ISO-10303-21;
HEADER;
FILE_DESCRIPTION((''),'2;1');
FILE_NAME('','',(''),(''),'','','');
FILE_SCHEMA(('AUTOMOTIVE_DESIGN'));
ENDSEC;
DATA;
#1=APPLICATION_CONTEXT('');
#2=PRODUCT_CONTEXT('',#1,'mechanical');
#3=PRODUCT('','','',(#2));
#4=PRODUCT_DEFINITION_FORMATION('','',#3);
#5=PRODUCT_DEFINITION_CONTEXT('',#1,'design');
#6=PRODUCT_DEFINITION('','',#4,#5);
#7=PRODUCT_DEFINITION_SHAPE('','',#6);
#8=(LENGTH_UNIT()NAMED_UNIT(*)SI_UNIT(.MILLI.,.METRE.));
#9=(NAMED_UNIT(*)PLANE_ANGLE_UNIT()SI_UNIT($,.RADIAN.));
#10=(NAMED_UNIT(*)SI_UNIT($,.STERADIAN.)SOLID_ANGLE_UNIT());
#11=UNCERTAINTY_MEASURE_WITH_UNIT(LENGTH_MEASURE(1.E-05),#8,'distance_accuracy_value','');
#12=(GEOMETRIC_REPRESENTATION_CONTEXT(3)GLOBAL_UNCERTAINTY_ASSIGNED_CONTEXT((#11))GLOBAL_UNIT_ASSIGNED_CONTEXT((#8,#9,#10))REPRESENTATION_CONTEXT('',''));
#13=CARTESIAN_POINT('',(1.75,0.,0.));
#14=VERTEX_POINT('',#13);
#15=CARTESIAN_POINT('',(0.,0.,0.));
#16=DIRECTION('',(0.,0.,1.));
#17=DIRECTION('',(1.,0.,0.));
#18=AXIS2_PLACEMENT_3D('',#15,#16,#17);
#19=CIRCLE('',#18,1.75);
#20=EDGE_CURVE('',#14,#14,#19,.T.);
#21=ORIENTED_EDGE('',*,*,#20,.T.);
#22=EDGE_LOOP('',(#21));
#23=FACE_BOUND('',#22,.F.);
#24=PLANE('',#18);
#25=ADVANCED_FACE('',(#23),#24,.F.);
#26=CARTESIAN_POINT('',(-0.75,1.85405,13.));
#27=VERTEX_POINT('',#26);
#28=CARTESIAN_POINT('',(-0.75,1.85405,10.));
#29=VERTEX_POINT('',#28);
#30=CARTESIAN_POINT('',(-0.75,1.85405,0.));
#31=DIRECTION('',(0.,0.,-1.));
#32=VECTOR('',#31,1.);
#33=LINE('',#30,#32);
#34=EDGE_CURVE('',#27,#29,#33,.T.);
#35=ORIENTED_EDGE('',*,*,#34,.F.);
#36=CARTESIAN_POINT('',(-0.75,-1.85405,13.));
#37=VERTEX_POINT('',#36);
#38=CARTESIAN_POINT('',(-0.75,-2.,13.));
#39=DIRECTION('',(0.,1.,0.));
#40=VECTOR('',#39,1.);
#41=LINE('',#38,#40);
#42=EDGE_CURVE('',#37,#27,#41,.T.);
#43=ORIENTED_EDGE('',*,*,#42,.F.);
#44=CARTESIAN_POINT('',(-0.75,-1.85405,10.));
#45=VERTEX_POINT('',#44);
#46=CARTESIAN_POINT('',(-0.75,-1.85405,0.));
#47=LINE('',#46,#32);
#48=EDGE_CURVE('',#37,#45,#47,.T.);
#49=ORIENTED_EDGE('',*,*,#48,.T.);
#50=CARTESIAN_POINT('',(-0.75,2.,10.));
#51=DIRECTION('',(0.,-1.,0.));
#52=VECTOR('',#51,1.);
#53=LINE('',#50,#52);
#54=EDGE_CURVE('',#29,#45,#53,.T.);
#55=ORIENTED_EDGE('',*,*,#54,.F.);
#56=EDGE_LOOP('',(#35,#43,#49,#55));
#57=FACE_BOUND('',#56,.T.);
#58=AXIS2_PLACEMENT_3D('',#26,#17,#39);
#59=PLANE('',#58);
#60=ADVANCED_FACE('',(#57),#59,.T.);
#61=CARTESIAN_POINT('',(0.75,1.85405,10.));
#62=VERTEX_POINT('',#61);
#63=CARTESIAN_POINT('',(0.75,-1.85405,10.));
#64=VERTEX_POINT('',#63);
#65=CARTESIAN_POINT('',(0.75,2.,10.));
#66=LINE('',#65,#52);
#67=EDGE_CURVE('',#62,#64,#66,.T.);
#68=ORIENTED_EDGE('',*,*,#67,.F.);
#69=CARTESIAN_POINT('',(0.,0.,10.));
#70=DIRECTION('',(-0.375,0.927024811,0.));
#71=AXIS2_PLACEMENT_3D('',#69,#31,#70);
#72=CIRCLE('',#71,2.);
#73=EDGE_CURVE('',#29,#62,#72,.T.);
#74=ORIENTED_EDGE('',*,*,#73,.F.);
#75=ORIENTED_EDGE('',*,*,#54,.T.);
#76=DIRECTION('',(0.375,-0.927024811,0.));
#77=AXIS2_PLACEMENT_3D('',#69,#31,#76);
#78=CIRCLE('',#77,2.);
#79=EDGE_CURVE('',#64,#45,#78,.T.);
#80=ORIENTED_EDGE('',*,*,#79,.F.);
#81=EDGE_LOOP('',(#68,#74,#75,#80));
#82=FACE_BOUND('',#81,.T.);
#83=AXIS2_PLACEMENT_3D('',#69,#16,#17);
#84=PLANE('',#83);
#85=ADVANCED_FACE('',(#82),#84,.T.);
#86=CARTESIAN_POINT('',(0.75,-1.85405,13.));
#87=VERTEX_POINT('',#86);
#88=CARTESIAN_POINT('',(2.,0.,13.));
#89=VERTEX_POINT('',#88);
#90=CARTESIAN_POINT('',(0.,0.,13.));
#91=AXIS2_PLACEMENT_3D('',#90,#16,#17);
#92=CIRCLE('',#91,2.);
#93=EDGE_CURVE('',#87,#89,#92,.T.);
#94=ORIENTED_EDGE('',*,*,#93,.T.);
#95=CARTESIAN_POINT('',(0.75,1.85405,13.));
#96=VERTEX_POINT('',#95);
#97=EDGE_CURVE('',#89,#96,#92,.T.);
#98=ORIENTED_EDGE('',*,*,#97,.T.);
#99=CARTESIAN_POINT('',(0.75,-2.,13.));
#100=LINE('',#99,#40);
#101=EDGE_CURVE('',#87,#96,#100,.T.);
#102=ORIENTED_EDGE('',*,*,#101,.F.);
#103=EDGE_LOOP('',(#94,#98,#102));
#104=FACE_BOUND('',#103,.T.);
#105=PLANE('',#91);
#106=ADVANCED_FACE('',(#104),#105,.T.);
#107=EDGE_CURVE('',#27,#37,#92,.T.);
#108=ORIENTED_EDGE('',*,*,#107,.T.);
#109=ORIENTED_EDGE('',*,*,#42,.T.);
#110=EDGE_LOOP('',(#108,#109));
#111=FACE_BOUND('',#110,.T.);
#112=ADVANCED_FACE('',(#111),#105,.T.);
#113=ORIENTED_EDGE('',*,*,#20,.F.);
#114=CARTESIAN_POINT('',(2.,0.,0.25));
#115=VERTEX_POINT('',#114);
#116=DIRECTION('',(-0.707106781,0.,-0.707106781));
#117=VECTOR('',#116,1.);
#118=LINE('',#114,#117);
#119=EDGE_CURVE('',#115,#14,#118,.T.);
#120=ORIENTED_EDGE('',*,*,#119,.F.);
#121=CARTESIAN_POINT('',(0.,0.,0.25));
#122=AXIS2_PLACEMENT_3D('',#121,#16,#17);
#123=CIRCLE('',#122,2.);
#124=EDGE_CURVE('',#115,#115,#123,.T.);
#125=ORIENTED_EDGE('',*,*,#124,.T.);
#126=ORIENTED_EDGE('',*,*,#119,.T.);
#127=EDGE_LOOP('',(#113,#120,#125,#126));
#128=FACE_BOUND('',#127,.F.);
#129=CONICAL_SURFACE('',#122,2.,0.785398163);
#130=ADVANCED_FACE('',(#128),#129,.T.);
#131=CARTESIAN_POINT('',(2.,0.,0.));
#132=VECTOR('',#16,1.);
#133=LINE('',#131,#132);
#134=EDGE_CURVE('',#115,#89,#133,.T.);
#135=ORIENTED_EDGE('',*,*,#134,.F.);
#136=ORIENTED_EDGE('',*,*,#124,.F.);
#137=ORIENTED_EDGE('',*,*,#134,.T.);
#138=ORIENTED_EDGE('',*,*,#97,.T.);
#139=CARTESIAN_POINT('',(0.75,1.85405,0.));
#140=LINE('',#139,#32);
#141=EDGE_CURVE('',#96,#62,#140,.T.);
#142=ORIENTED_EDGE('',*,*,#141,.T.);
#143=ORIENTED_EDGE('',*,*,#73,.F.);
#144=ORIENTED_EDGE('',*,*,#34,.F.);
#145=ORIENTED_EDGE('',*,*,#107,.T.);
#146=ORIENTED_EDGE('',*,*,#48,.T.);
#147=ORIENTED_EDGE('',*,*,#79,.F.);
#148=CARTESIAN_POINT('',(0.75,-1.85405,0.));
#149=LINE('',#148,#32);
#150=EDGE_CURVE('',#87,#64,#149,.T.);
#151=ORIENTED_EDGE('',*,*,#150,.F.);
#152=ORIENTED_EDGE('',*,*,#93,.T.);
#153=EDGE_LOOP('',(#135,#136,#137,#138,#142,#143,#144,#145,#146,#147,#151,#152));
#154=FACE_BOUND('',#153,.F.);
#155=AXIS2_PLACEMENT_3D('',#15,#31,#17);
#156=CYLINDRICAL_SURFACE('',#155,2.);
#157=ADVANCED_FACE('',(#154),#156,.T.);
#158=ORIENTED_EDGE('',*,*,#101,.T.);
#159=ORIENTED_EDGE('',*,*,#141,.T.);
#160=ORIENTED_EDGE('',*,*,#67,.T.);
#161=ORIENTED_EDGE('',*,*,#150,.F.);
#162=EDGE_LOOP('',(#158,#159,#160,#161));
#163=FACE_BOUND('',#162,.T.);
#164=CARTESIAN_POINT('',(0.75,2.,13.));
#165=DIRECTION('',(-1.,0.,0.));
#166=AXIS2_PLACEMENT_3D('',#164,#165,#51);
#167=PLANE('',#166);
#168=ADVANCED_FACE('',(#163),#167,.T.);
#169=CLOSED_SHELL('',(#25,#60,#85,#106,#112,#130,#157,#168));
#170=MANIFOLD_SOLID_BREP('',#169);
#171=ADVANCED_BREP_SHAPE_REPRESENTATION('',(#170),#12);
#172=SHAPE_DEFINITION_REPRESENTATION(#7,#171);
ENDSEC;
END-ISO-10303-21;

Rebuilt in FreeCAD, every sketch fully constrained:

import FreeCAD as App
import Part
import Sketcher
Q = App.Units.Quantity


def edges_at(feature, points):
    """Names of the edges that pass closest to the given points."""
    edges = feature.Shape.Edges
    near = lambda p: min(range(len(edges)), key=lambda i: edges[i].distToShape(Part.Vertex(*p))[0])
    return sorted({f"Edge{near(p) + 1}" for p in points})

doc = App.newDocument("Part")
body = doc.addObject("PartDesign::Body", "Body")

# Sketch on XY plane
sketch1 = doc.addObject("Sketcher::SketchObject", "Sketch")
body.addObject(sketch1)
sketch1.AttachmentSupport = (doc.XY_Plane, [""])
sketch1.MapMode = "FlatFace"
sketch1.addGeometry(Part.Circle(App.Vector(0, 0, 0), App.Vector(0, 0, 1), 2), False)
sketch1.addConstraint([
    Sketcher.Constraint("Coincident", 0, 3, -1, 1),
    Sketcher.Constraint("Diameter", 0, Q("4 mm")),
])
pad1 = doc.addObject("PartDesign::Pad", "Pad")
body.addObject(pad1)
pad1.Profile = sketch1
pad1.Length = 13

# Sketch on XY plane
sketch2 = doc.addObject("Sketcher::SketchObject", "Sketch001")
body.addObject(sketch2)
sketch2.AttachmentSupport = (doc.XY_Plane, [""])
sketch2.MapMode = "FlatFace"
sketch2.AttachmentOffset = App.Placement(App.Vector(0, 0, 13), App.Rotation())
sketch2.addGeometry([
    Part.LineSegment(App.Vector(-0.8, 2, 0), App.Vector(-0.8, -2, 0)),
    Part.LineSegment(App.Vector(-0.8, -2, 0), App.Vector(0.8, -2, 0)),
    Part.LineSegment(App.Vector(0.8, -2, 0), App.Vector(0.8, 2, 0)),
    Part.LineSegment(App.Vector(0.8, 2, 0), App.Vector(-0.8, 2, 0)),
], False)
sketch2.addConstraint([
    Sketcher.Constraint("Coincident", 0, 2, 1, 1),
    Sketcher.Constraint("Coincident", 1, 2, 2, 1),
    Sketcher.Constraint("Coincident", 2, 2, 3, 1),
    Sketcher.Constraint("Coincident", 3, 2, 0, 1),
    Sketcher.Constraint("Vertical", 0),
    Sketcher.Constraint("Horizontal", 1),
    Sketcher.Constraint("Vertical", 2),
    Sketcher.Constraint("Horizontal", 3),
    Sketcher.Constraint("Symmetric", 0, 2, 2, 2, -1, 1),
    Sketcher.Constraint("DistanceX", 1, 1, 1, 2, Q("1.5 mm")),
    Sketcher.Constraint("DistanceY", 0, 2, 0, 1, Q("4 mm")),
])
pocket1 = doc.addObject("PartDesign::Pocket", "Pocket")
body.addObject(pocket1)
pocket1.Profile = sketch2
pocket1.Length = 3
doc.recompute()

chamfer = doc.addObject("PartDesign::Chamfer", "Chamfer")
body.addObject(chamfer)
chamfer.Base = (pocket1, edges_at(pocket1, [(-2, 0, 0)]))
chamfer.Size = 0.25

doc.recompute()
